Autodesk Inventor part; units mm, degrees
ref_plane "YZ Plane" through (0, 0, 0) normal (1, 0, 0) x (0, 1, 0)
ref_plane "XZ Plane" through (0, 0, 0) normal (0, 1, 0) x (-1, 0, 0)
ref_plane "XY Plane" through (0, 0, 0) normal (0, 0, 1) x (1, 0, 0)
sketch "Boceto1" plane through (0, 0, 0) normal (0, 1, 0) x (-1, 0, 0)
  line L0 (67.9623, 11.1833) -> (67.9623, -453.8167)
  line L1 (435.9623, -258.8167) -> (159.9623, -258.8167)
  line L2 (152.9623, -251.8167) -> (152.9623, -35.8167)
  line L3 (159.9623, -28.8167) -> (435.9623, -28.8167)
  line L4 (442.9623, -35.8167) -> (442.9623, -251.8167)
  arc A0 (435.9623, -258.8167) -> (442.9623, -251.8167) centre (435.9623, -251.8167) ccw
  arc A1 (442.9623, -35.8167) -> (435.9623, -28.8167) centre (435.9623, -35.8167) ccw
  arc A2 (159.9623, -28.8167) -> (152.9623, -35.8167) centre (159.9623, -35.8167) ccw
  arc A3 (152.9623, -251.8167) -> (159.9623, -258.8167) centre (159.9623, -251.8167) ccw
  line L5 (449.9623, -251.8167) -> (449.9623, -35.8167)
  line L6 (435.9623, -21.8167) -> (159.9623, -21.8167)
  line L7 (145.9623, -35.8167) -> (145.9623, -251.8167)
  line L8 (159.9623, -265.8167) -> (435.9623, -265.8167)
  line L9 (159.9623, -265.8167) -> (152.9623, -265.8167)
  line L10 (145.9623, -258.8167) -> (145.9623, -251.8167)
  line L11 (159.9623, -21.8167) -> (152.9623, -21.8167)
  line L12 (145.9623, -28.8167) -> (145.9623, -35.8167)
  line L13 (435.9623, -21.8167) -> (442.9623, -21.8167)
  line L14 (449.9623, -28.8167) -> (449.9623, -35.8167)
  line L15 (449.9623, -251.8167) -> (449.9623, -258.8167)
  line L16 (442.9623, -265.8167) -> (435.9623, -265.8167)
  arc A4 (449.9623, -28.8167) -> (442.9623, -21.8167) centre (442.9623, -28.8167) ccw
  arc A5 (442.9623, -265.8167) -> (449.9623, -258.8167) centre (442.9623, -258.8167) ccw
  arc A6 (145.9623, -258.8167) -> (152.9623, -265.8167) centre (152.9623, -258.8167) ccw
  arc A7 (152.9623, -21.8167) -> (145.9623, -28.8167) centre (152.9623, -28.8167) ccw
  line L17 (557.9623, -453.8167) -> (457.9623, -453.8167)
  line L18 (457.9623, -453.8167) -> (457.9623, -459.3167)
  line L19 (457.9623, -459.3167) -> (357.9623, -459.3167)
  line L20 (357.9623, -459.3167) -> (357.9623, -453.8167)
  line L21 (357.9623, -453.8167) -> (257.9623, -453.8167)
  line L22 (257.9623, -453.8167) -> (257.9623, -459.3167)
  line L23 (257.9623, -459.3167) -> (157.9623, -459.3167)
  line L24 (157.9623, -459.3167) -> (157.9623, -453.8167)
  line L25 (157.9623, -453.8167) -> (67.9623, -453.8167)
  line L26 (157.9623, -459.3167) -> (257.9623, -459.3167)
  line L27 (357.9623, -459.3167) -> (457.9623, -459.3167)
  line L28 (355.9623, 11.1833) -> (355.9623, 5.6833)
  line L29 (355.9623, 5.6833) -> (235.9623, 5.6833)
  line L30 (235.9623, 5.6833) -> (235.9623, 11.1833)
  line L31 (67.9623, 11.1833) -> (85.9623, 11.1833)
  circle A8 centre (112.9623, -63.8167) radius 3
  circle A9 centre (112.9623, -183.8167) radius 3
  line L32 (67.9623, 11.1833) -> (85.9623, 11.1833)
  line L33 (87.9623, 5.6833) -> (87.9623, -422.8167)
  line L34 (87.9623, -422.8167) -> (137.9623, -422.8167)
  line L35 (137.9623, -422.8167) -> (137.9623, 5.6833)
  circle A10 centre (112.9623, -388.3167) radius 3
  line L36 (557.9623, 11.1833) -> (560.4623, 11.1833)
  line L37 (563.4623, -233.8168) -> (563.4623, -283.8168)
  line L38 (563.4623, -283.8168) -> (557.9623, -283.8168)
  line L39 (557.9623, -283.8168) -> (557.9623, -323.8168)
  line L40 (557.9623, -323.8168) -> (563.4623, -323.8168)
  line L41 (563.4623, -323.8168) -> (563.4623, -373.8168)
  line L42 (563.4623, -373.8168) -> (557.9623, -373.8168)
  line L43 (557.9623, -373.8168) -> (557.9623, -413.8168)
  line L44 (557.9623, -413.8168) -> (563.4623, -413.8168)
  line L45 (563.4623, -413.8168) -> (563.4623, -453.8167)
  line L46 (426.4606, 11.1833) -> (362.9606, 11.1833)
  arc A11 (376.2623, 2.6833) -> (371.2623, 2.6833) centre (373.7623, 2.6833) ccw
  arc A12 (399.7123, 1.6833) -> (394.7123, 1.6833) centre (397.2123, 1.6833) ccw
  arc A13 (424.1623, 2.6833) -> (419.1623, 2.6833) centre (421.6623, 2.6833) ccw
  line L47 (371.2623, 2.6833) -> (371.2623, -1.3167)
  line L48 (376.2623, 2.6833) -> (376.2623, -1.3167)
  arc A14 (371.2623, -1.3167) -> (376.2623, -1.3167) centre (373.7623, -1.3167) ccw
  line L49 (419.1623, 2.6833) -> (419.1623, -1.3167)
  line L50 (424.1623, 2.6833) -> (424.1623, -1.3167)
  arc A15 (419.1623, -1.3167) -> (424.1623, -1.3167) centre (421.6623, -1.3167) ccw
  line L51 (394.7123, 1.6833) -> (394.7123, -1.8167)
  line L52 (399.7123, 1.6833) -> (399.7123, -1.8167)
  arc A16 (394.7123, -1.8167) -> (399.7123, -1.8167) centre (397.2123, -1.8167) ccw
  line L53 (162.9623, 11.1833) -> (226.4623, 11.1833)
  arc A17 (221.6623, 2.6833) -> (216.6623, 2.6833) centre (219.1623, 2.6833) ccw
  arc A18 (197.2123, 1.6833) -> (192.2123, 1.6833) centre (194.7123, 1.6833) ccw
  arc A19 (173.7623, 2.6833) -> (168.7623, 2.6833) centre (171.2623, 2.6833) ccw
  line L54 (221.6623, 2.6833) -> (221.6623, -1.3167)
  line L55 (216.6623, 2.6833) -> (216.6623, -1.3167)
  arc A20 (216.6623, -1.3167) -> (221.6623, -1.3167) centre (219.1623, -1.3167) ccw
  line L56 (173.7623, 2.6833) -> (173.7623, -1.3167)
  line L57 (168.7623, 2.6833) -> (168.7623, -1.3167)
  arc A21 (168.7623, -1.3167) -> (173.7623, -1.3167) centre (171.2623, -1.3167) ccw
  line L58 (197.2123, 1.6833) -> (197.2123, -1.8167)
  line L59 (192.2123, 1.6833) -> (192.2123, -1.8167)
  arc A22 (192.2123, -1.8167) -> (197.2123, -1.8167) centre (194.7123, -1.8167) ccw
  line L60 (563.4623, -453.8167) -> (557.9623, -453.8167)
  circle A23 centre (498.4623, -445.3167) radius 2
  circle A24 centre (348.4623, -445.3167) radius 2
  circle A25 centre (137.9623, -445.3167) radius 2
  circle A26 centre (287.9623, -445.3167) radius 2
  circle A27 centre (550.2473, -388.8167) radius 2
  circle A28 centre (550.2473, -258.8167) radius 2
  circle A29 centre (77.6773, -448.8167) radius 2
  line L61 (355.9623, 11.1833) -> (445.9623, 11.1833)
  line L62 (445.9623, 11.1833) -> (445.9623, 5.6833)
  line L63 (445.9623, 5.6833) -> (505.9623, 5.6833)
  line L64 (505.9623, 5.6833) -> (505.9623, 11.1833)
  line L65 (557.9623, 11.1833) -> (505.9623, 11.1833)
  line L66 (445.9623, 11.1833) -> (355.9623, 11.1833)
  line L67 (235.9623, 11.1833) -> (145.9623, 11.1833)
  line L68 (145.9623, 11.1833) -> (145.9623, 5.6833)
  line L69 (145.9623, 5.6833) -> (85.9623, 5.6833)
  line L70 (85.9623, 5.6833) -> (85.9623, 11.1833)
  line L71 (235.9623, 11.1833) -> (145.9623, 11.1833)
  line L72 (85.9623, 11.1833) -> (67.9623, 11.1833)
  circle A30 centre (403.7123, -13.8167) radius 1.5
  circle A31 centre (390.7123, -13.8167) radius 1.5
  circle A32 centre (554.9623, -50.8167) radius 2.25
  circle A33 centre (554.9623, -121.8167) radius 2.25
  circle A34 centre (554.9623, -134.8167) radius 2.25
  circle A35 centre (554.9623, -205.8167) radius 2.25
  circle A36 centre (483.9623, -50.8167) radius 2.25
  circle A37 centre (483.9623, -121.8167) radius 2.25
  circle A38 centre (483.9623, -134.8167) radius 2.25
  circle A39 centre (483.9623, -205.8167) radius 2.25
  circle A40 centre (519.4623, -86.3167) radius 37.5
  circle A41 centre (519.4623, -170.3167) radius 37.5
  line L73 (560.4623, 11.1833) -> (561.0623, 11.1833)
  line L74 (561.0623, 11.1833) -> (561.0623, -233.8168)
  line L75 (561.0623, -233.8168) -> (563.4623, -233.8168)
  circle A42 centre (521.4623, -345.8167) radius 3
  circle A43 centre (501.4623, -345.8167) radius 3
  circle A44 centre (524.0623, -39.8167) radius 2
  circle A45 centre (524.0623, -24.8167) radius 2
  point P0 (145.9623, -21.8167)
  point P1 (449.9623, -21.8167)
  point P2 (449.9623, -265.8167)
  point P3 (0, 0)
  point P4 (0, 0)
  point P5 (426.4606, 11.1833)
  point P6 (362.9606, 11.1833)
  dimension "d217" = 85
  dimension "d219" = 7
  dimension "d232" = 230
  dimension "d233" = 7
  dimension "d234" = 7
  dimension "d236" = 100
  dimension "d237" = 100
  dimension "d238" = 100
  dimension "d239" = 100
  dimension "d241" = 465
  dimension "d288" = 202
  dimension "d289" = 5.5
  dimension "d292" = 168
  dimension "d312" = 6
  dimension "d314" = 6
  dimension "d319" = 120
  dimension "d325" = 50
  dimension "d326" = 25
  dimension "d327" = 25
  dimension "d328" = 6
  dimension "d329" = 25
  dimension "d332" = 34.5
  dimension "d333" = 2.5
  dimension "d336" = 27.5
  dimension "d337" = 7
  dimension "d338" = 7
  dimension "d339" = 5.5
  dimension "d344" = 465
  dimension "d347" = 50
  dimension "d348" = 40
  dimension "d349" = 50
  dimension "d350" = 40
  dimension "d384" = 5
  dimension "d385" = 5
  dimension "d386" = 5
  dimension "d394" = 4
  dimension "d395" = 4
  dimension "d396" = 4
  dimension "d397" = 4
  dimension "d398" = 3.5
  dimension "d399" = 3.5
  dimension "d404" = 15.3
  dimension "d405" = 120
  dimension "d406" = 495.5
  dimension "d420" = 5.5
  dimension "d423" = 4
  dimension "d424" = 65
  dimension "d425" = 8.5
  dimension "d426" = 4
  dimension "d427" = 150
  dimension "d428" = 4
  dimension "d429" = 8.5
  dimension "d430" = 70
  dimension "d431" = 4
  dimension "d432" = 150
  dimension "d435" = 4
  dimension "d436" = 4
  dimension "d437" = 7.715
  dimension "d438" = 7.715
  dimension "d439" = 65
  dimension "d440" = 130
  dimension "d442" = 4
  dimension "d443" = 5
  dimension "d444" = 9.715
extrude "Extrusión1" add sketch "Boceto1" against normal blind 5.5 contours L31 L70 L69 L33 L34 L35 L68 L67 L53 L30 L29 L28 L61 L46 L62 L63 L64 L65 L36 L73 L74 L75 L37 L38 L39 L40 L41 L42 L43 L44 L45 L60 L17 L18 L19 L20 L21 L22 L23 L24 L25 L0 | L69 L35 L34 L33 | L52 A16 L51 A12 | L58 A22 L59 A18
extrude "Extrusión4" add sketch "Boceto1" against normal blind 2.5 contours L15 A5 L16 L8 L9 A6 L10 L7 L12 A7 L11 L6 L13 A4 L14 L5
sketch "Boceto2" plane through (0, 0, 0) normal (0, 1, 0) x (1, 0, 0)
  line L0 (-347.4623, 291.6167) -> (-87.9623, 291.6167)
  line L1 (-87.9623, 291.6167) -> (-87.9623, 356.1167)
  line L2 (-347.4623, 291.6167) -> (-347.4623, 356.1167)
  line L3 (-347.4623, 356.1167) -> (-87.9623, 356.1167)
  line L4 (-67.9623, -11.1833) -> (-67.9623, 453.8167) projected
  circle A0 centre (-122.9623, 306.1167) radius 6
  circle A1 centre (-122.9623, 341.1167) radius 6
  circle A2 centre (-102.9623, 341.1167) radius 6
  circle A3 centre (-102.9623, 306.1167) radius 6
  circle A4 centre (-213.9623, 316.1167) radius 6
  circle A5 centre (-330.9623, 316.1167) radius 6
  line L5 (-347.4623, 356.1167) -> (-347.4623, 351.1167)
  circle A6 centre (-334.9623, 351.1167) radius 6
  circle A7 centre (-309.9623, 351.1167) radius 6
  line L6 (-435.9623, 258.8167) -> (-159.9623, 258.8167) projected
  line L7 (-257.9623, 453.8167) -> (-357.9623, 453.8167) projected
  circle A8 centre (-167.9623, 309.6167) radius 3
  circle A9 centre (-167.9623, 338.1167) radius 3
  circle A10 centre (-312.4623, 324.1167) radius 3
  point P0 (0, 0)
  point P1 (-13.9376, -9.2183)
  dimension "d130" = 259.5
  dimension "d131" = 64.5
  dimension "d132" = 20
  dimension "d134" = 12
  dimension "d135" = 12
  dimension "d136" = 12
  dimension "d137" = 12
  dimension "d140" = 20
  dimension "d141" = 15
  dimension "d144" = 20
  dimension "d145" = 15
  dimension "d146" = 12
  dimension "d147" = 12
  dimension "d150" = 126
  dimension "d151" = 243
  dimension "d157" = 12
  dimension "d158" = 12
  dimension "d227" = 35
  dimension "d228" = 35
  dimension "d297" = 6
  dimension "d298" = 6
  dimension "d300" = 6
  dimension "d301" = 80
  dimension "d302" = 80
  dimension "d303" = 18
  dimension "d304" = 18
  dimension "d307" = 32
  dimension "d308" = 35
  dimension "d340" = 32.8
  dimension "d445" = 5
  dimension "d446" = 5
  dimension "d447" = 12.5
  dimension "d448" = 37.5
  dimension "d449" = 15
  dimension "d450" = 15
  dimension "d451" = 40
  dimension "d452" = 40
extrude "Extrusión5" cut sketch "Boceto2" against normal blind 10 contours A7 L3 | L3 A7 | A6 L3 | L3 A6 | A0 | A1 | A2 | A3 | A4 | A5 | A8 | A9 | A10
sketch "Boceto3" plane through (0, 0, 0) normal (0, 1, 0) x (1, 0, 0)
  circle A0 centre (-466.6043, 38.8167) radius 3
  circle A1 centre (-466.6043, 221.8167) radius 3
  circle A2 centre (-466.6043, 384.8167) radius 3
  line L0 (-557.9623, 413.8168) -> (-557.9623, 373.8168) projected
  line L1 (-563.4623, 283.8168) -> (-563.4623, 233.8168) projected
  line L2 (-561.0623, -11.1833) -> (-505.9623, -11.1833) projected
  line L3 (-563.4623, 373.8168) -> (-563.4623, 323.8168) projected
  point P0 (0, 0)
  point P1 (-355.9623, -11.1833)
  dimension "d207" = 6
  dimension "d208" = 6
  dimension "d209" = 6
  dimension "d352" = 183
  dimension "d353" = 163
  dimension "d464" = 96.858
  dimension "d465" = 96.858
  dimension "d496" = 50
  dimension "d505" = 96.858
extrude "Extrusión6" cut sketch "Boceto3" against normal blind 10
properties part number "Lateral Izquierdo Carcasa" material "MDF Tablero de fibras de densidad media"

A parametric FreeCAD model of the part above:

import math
import FreeCAD as App
import Part
import Sketcher

V = App.Vector
Q = App.Units.Quantity

doc = App.newDocument("Part")
params = doc.addObject("Spreadsheet::Sheet", "Params")
for row, (alias, value) in enumerate([
    ("sketch1_diameter", "4 mm"),
    ("sketch1_diameter2", "6 mm"),
    ("sketch1_radius", "7 mm"),
    ("sketch1_radius2", "2.5 mm"),
    ("sketch1_width", "100 mm"),
    ("pad1_length", "5.5 mm"),
    ("sketch2_radius", "7 mm"),
    ("sketch2_height", "230 mm"),
    ("sketch2_width", "290 mm"),
    ("pad2_length", "2.5 mm"),
    ("sketch3_diameter", "12 mm"),
    ("sketch3_diameter2", "6 mm"),
    ("pocket1_length", "10 mm"),
    ("sketch4_diameter", "6 mm"),
    ("pocket2_length", "10 mm"),
], start=1):
    params.set(f"A{row}", alias)
    params.set(f"B{row}", "=" + value)
    params.setAlias(f"B{row}", alias)

body = doc.addObject("PartDesign::Body", "Body")

sketch1 = body.newObject("Sketcher::SketchObject", "Sketch")
sketch1.AttachmentSupport = (doc.getObject("XZ_Plane"), [""])
sketch1.MapMode = "FlatFace"
sketch1.addGeometry(Part.LineSegment(V(-86, 11.2, 0), V(-68, 11.2, 0)), False)
sketch1.addGeometry(Part.LineSegment(V(-68, 11.2, 0), V(-68, -453.8, 0)), False)
sketch1.addGeometry(Part.LineSegment(V(-68, -453.8, 0), V(-158, -453.8, 0)), False)
sketch1.addGeometry(Part.LineSegment(V(-158, -453.8, 0), V(-158, -459.3, 0)), False)
sketch1.addGeometry(Part.LineSegment(V(-158, -459.3, 0), V(-258, -459.3, 0)), False)
sketch1.addGeometry(Part.LineSegment(V(-258, -459.3, 0), V(-258, -453.8, 0)), False)
sketch1.addGeometry(Part.LineSegment(V(-258, -453.8, 0), V(-358, -453.8, 0)), False)
sketch1.addGeometry(Part.LineSegment(V(-358, -453.8, 0), V(-358, -459.3, 0)), False)
sketch1.addGeometry(Part.LineSegment(V(-358, -459.3, 0), V(-458, -459.3, 0)), False)
sketch1.addGeometry(Part.LineSegment(V(-458, -459.3, 0), V(-458, -453.8, 0)), False)
sketch1.addGeometry(Part.LineSegment(V(-458, -453.8, 0), V(-563.5, -453.8, 0)), False)
sketch1.addGeometry(Part.LineSegment(V(-563.5, -453.8, 0), V(-563.5, -413.8, 0)), False)
sketch1.addGeometry(Part.LineSegment(V(-563.5, -413.8, 0), V(-558, -413.8, 0)), False)
sketch1.addGeometry(Part.LineSegment(V(-558, -413.8, 0), V(-558, -373.8, 0)), False)
sketch1.addGeometry(Part.LineSegment(V(-558, -373.8, 0), V(-563.5, -373.8, 0)), False)
sketch1.addGeometry(Part.LineSegment(V(-563.5, -373.8, 0), V(-563.5, -323.8, 0)), False)
sketch1.addGeometry(Part.LineSegment(V(-563.5, -323.8, 0), V(-558, -323.8, 0)), False)
sketch1.addGeometry(Part.LineSegment(V(-558, -323.8, 0), V(-558, -283.8, 0)), False)
sketch1.addGeometry(Part.LineSegment(V(-558, -283.8, 0), V(-563.5, -283.8, 0)), False)
sketch1.addGeometry(Part.LineSegment(V(-563.5, -283.8, 0), V(-563.5, -233.8, 0)), False)
sketch1.addGeometry(Part.LineSegment(V(-563.5, -233.8, 0), V(-561.1, -233.8, 0)), False)
sketch1.addGeometry(Part.LineSegment(V(-561.1, -233.8, 0), V(-561.1, 11.2, 0)), False)
sketch1.addGeometry(Part.LineSegment(V(-561.1, 11.2, 0), V(-506, 11.2, 0)), False)
sketch1.addGeometry(Part.LineSegment(V(-506, 11.2, 0), V(-506, 5.7, 0)), False)
sketch1.addGeometry(Part.LineSegment(V(-506, 5.7, 0), V(-446, 5.7, 0)), False)
sketch1.addGeometry(Part.LineSegment(V(-446, 5.7, 0), V(-446, 11.2, 0)), False)
sketch1.addGeometry(Part.LineSegment(V(-446, 11.2, 0), V(-356, 11.2, 0)), False)
sketch1.addGeometry(Part.LineSegment(V(-356, 11.2, 0), V(-356, 5.7, 0)), False)
sketch1.addGeometry(Part.LineSegment(V(-356, 5.7, 0), V(-236, 5.7, 0)), False)
sketch1.addGeometry(Part.LineSegment(V(-236, 5.7, 0), V(-236, 11.2, 0)), False)
sketch1.addGeometry(Part.LineSegment(V(-236, 11.2, 0), V(-146, 11.2, 0)), False)
sketch1.addGeometry(Part.LineSegment(V(-146, 11.2, 0), V(-146, 5.7, 0)), False)
sketch1.addGeometry(Part.LineSegment(V(-146, 5.7, 0), V(-86, 5.7, 0)), False)
sketch1.addGeometry(Part.LineSegment(V(-86, 5.7, 0), V(-86, 11.2, 0)), False)
sketch1.addGeometry(Part.Circle(V(-77.7, -448.8, 0), V(0, 0, 1), 2), False)
sketch1.addGeometry(Part.Circle(V(-138, -445.3, 0), V(0, 0, 1), 2), False)
sketch1.addGeometry(Part.Circle(V(-288, -445.3, 0), V(0, 0, 1), 2), False)
sketch1.addGeometry(Part.Circle(V(-348.5, -445.3, 0), V(0, 0, 1), 2), False)
sketch1.addGeometry(Part.Circle(V(-498.5, -445.3, 0), V(0, 0, 1), 2), False)
sketch1.addGeometry(Part.Circle(V(-501.5, -345.8, 0), V(0, 0, 1), 3), False)
sketch1.addGeometry(Part.Circle(V(-550.2, -388.8, 0), V(0, 0, 1), 2), False)
sketch1.addGeometry(Part.Circle(V(-521.5, -345.8, 0), V(0, 0, 1), 3), False)
sketch1.addGeometry(Part.Circle(V(-550.2, -258.8, 0), V(0, 0, 1), 2), False)
sketch1.addGeometry(Part.ArcOfCircle(Part.Circle(V(-443, -258.8, 0), V(0, 0, 1), 7), math.radians(180), math.radians(270)), False)
sketch1.addGeometry(Part.LineSegment(V(-443, -265.8, 0), V(-153, -265.8, 0)), False)
sketch1.addGeometry(Part.ArcOfCircle(Part.Circle(V(-153, -258.8, 0), V(0, 0, 1), 7), math.radians(-90), math.radians(0)), False)
sketch1.addGeometry(Part.LineSegment(V(-146, -258.8, 0), V(-146, -28.8, 0)), False)
sketch1.addGeometry(Part.ArcOfCircle(Part.Circle(V(-153, -28.8, 0), V(0, 0, 1), 7), math.radians(0), math.radians(90)), False)
sketch1.addGeometry(Part.LineSegment(V(-153, -21.8, 0), V(-443, -21.8, 0)), False)
sketch1.addGeometry(Part.ArcOfCircle(Part.Circle(V(-443, -28.8, 0), V(0, 0, 1), 7), math.radians(90), math.radians(180)), False)
sketch1.addGeometry(Part.LineSegment(V(-450, -28.8, 0), V(-450, -258.8, 0)), False)
sketch1.addGeometry(Part.ArcOfCircle(Part.Circle(V(-171.3, 2.7, 0), V(0, 0, 1), 2.5), math.radians(0), math.radians(180)), False)
sketch1.addGeometry(Part.LineSegment(V(-173.8, 2.7, 0), V(-173.8, -1.3, 0)), False)
sketch1.addGeometry(Part.ArcOfCircle(Part.Circle(V(-171.3, -1.3, 0), V(0, 0, 1), 2.5), math.radians(180), math.radians(360)), False)
sketch1.addGeometry(Part.LineSegment(V(-168.8, -1.3, 0), V(-168.8, 2.7, 0)), False)
sketch1.addGeometry(Part.ArcOfCircle(Part.Circle(V(-219.2, 2.7, 0), V(0, 0, 1), 2.5), math.radians(0), math.radians(180)), False)
sketch1.addGeometry(Part.LineSegment(V(-221.7, 2.7, 0), V(-221.7, -1.3, 0)), False)
sketch1.addGeometry(Part.ArcOfCircle(Part.Circle(V(-219.2, -1.3, 0), V(0, 0, 1), 2.5), math.radians(180), math.radians(360)), False)
sketch1.addGeometry(Part.LineSegment(V(-216.7, -1.3, 0), V(-216.7, 2.7, 0)), False)
sketch1.addGeometry(Part.Circle(V(-484, -205.8, 0), V(0, 0, 1), 2.2), False)
sketch1.addGeometry(Part.Circle(V(-555, -205.8, 0), V(0, 0, 1), 2.2), False)
sketch1.addGeometry(Part.Circle(V(-519.5, -170.3, 0), V(0, 0, 1), 37.5), False)
sketch1.addGeometry(Part.Circle(V(-484, -134.8, 0), V(0, 0, 1), 2.2), False)
sketch1.addGeometry(Part.Circle(V(-484, -121.8, 0), V(0, 0, 1), 2.2), False)
sketch1.addGeometry(Part.Circle(V(-555, -134.8, 0), V(0, 0, 1), 2.2), False)
sketch1.addGeometry(Part.Circle(V(-555, -121.8, 0), V(0, 0, 1), 2.2), False)
sketch1.addGeometry(Part.ArcOfCircle(Part.Circle(V(-373.8, 2.7, 0), V(0, 0, 1), 2.5), math.radians(0), math.radians(180)), False)
sketch1.addGeometry(Part.LineSegment(V(-376.3, 2.7, 0), V(-376.3, -1.3, 0)), False)
sketch1.addGeometry(Part.ArcOfCircle(Part.Circle(V(-373.8, -1.3, 0), V(0, 0, 1), 2.5), math.radians(180), math.radians(360)), False)
sketch1.addGeometry(Part.LineSegment(V(-371.3, -1.3, 0), V(-371.3, 2.7, 0)), False)
sketch1.addGeometry(Part.Circle(V(-390.7, -13.8, 0), V(0, 0, 1), 1.5), False)
sketch1.addGeometry(Part.Circle(V(-403.7, -13.8, 0), V(0, 0, 1), 1.5), False)
sketch1.addGeometry(Part.ArcOfCircle(Part.Circle(V(-421.7, 2.7, 0), V(0, 0, 1), 2.5), math.radians(0), math.radians(180)), False)
sketch1.addGeometry(Part.LineSegment(V(-424.2, 2.7, 0), V(-424.2, -1.3, 0)), False)
sketch1.addGeometry(Part.ArcOfCircle(Part.Circle(V(-421.7, -1.3, 0), V(0, 0, 1), 2.5), math.radians(180), math.radians(360)), False)
sketch1.addGeometry(Part.LineSegment(V(-419.2, -1.3, 0), V(-419.2, 2.7, 0)), False)
sketch1.addGeometry(Part.Circle(V(-484, -50.8, 0), V(0, 0, 1), 2.2), False)
sketch1.addGeometry(Part.Circle(V(-519.5, -86.3, 0), V(0, 0, 1), 37.5), False)
sketch1.addGeometry(Part.Circle(V(-555, -50.8, 0), V(0, 0, 1), 2.2), False)
sketch1.addGeometry(Part.Circle(V(-524.1, -39.8, 0), V(0, 0, 1), 2), False)
sketch1.addGeometry(Part.Circle(V(-524.1, -24.8, 0), V(0, 0, 1), 2), False)
sketch1.addGeometry(Part.Circle(V(-113, -388.3, 0), V(0, 0, 1), 3), False)
sketch1.addGeometry(Part.Circle(V(-113, -183.8, 0), V(0, 0, 1), 3), False)
sketch1.addGeometry(Part.Circle(V(-113, -63.8, 0), V(0, 0, 1), 3), False)
sketch1.addConstraint(Sketcher.Constraint("Coincident", 0, 2, 1, 1))
sketch1.addConstraint(Sketcher.Constraint("Coincident", 1, 2, 2, 1))
sketch1.addConstraint(Sketcher.Constraint("Coincident", 2, 2, 3, 1))
sketch1.addConstraint(Sketcher.Constraint("Coincident", 3, 2, 4, 1))
sketch1.addConstraint(Sketcher.Constraint("Coincident", 4, 2, 5, 1))
sketch1.addConstraint(Sketcher.Constraint("Coincident", 5, 2, 6, 1))
sketch1.addConstraint(Sketcher.Constraint("Coincident", 6, 2, 7, 1))
sketch1.addConstraint(Sketcher.Constraint("Coincident", 7, 2, 8, 1))
sketch1.addConstraint(Sketcher.Constraint("Coincident", 8, 2, 9, 1))
sketch1.addConstraint(Sketcher.Constraint("Coincident", 9, 2, 10, 1))
sketch1.addConstraint(Sketcher.Constraint("Coincident", 10, 2, 11, 1))
sketch1.addConstraint(Sketcher.Constraint("Coincident", 11, 2, 12, 1))
sketch1.addConstraint(Sketcher.Constraint("Coincident", 12, 2, 13, 1))
sketch1.addConstraint(Sketcher.Constraint("Coincident", 13, 2, 14, 1))
sketch1.addConstraint(Sketcher.Constraint("Coincident", 14, 2, 15, 1))
sketch1.addConstraint(Sketcher.Constraint("Coincident", 15, 2, 16, 1))
sketch1.addConstraint(Sketcher.Constraint("Coincident", 16, 2, 17, 1))
sketch1.addConstraint(Sketcher.Constraint("Coincident", 17, 2, 18, 1))
sketch1.addConstraint(Sketcher.Constraint("Coincident", 18, 2, 19, 1))
sketch1.addConstraint(Sketcher.Constraint("Coincident", 19, 2, 20, 1))
sketch1.addConstraint(Sketcher.Constraint("Coincident", 20, 2, 21, 1))
sketch1.addConstraint(Sketcher.Constraint("Coincident", 21, 2, 22, 1))
sketch1.addConstraint(Sketcher.Constraint("Coincident", 22, 2, 23, 1))
sketch1.addConstraint(Sketcher.Constraint("Coincident", 23, 2, 24, 1))
sketch1.addConstraint(Sketcher.Constraint("Coincident", 24, 2, 25, 1))
sketch1.addConstraint(Sketcher.Constraint("Coincident", 25, 2, 26, 1))
sketch1.addConstraint(Sketcher.Constraint("Coincident", 26, 2, 27, 1))
sketch1.addConstraint(Sketcher.Constraint("Coincident", 27, 2, 28, 1))
sketch1.addConstraint(Sketcher.Constraint("Coincident", 28, 2, 29, 1))
sketch1.addConstraint(Sketcher.Constraint("Coincident", 29, 2, 30, 1))
sketch1.addConstraint(Sketcher.Constraint("Coincident", 30, 2, 31, 1))
sketch1.addConstraint(Sketcher.Constraint("Coincident", 31, 2, 32, 1))
sketch1.addConstraint(Sketcher.Constraint("Coincident", 32, 2, 33, 1))
sketch1.addConstraint(Sketcher.Constraint("Coincident", 33, 2, 0, 1))
sketch1.addConstraint(Sketcher.Constraint("Tangent", 43, 2, 44, 1))
sketch1.addConstraint(Sketcher.Constraint("Tangent", 44, 2, 45, 1))
sketch1.addConstraint(Sketcher.Constraint("Tangent", 45, 2, 46, 1))
sketch1.addConstraint(Sketcher.Constraint("Tangent", 46, 2, 47, 1))
sketch1.addConstraint(Sketcher.Constraint("Tangent", 47, 2, 48, 1))
sketch1.addConstraint(Sketcher.Constraint("Tangent", 48, 2, 49, 1))
sketch1.addConstraint(Sketcher.Constraint("Tangent", 49, 2, 50, 1))
sketch1.addConstraint(Sketcher.Constraint("Tangent", 50, 2, 43, 1))
sketch1.addConstraint(Sketcher.Constraint("Tangent", 51, 2, 52, 1))
sketch1.addConstraint(Sketcher.Constraint("Tangent", 52, 2, 53, 1))
sketch1.addConstraint(Sketcher.Constraint("Tangent", 53, 2, 54, 1))
sketch1.addConstraint(Sketcher.Constraint("Tangent", 54, 2, 51, 1))
sketch1.addConstraint(Sketcher.Constraint("Tangent", 55, 2, 56, 1))
sketch1.addConstraint(Sketcher.Constraint("Tangent", 56, 2, 57, 1))
sketch1.addConstraint(Sketcher.Constraint("Tangent", 57, 2, 58, 1))
sketch1.addConstraint(Sketcher.Constraint("Tangent", 58, 2, 55, 1))
sketch1.addConstraint(Sketcher.Constraint("Tangent", 66, 2, 67, 1))
sketch1.addConstraint(Sketcher.Constraint("Tangent", 67, 2, 68, 1))
sketch1.addConstraint(Sketcher.Constraint("Tangent", 68, 2, 69, 1))
sketch1.addConstraint(Sketcher.Constraint("Tangent", 69, 2, 66, 1))
sketch1.addConstraint(Sketcher.Constraint("Tangent", 72, 2, 73, 1))
sketch1.addConstraint(Sketcher.Constraint("Tangent", 73, 2, 74, 1))
sketch1.addConstraint(Sketcher.Constraint("Tangent", 74, 2, 75, 1))
sketch1.addConstraint(Sketcher.Constraint("Tangent", 75, 2, 72, 1))
sketch1.addConstraint(Sketcher.Constraint("Horizontal", 0))
sketch1.addConstraint(Sketcher.Constraint("Vertical", 1))
sketch1.addConstraint(Sketcher.Constraint("Horizontal", 2))
sketch1.addConstraint(Sketcher.Constraint("Vertical", 3))
sketch1.addConstraint(Sketcher.Constraint("Horizontal", 4))
sketch1.addConstraint(Sketcher.Constraint("Vertical", 5))
sketch1.addConstraint(Sketcher.Constraint("Horizontal", 6))
sketch1.addConstraint(Sketcher.Constraint("Vertical", 7))
sketch1.addConstraint(Sketcher.Constraint("Horizontal", 8))
sketch1.addConstraint(Sketcher.Constraint("Vertical", 9))
sketch1.addConstraint(Sketcher.Constraint("Horizontal", 10))
sketch1.addConstraint(Sketcher.Constraint("Vertical", 11))
sketch1.addConstraint(Sketcher.Constraint("Horizontal", 12))
sketch1.addConstraint(Sketcher.Constraint("Vertical", 13))
sketch1.addConstraint(Sketcher.Constraint("Horizontal", 14))
sketch1.addConstraint(Sketcher.Constraint("Vertical", 15))
sketch1.addConstraint(Sketcher.Constraint("Horizontal", 16))
sketch1.addConstraint(Sketcher.Constraint("Vertical", 17))
sketch1.addConstraint(Sketcher.Constraint("Horizontal", 18))
sketch1.addConstraint(Sketcher.Constraint("Vertical", 19))
sketch1.addConstraint(Sketcher.Constraint("Horizontal", 20))
sketch1.addConstraint(Sketcher.Constraint("Vertical", 21))
sketch1.addConstraint(Sketcher.Constraint("Horizontal", 22))
sketch1.addConstraint(Sketcher.Constraint("Vertical", 23))
sketch1.addConstraint(Sketcher.Constraint("Horizontal", 24))
sketch1.addConstraint(Sketcher.Constraint("Vertical", 25))
sketch1.addConstraint(Sketcher.Constraint("Horizontal", 26))
sketch1.addConstraint(Sketcher.Constraint("Vertical", 27))
sketch1.addConstraint(Sketcher.Constraint("Horizontal", 28))
sketch1.addConstraint(Sketcher.Constraint("Vertical", 29))
sketch1.addConstraint(Sketcher.Constraint("Horizontal", 30))
sketch1.addConstraint(Sketcher.Constraint("Vertical", 31))
sketch1.addConstraint(Sketcher.Constraint("Horizontal", 32))
sketch1.addConstraint(Sketcher.Constraint("Vertical", 33))
sketch1.addConstraint(Sketcher.Constraint("Horizontal", 44))
sketch1.addConstraint(Sketcher.Constraint("Vertical", 46))
sketch1.addConstraint(Sketcher.Constraint("Horizontal", 48))
sketch1.addConstraint(Sketcher.Constraint("Vertical", 50))
sketch1.addConstraint(Sketcher.Constraint("Vertical", 52))
sketch1.addConstraint(Sketcher.Constraint("Vertical", 54))
sketch1.addConstraint(Sketcher.Constraint("Vertical", 56))
sketch1.addConstraint(Sketcher.Constraint("Vertical", 58))
sketch1.addConstraint(Sketcher.Constraint("Vertical", 67))
sketch1.addConstraint(Sketcher.Constraint("Vertical", 69))
sketch1.addConstraint(Sketcher.Constraint("Vertical", 73))
sketch1.addConstraint(Sketcher.Constraint("Vertical", 75))
sketch1.addConstraint(Sketcher.Constraint("Equal", 34, 35))
sketch1.addConstraint(Sketcher.Constraint("Equal", 35, 36))
sketch1.addConstraint(Sketcher.Constraint("Equal", 36, 37))
sketch1.addConstraint(Sketcher.Constraint("Equal", 37, 38))
sketch1.addConstraint(Sketcher.Constraint("Equal", 38, 40))
sketch1.addConstraint(Sketcher.Constraint("Equal", 39, 41))
sketch1.addConstraint(Sketcher.Constraint("Equal", 40, 42))
sketch1.addConstraint(Sketcher.Constraint("Equal", 43, 45))
sketch1.addConstraint(Sketcher.Constraint("Equal", 45, 47))
sketch1.addConstraint(Sketcher.Constraint("Equal", 47, 49))
sketch1.addConstraint(Sketcher.Constraint("Equal", 53, 55))
sketch1.addConstraint(Sketcher.Constraint("Equal", 59, 60))
sketch1.addConstraint(Sketcher.Constraint("Equal", 60, 62))
sketch1.addConstraint(Sketcher.Constraint("Equal", 62, 63))
sketch1.addConstraint(Sketcher.Constraint("Equal", 63, 64))
sketch1.addConstraint(Sketcher.Constraint("Equal", 64, 65))
sketch1.addConstraint(Sketcher.Constraint("Equal", 57, 66))
sketch1.addConstraint(Sketcher.Constraint("Equal", 70, 71))
sketch1.addConstraint(Sketcher.Constraint("Equal", 68, 72))
sketch1.addConstraint(Sketcher.Constraint("Equal", 65, 76))
sketch1.addConstraint(Sketcher.Constraint("Equal", 61, 77))
sketch1.addConstraint(Sketcher.Constraint("Equal", 76, 78))
sketch1.addConstraint(Sketcher.Constraint("Equal", 42, 79))
sketch1.addConstraint(Sketcher.Constraint("Equal", 79, 80))
sketch1.addConstraint(Sketcher.Constraint("Equal", 41, 81))
sketch1.addConstraint(Sketcher.Constraint("Equal", 81, 82))
sketch1.addConstraint(Sketcher.Constraint("Equal", 82, 83))
sketch1.addConstraint(Sketcher.Constraint("Horizontal", 35, 3, 36, 3))
sketch1.addConstraint(Sketcher.Constraint("Horizontal", 36, 3, 37, 3))
sketch1.addConstraint(Sketcher.Constraint("Horizontal", 37, 3, 38, 3))
sketch1.addConstraint(Sketcher.Constraint("Horizontal", 39, 3, 41, 3))
sketch1.addConstraint(Sketcher.Constraint("Horizontal", 42, 3, 43, 3))
sketch1.addConstraint(Sketcher.Constraint("Horizontal", 51, 3, 55, 3))
sketch1.addConstraint(Sketcher.Constraint("Horizontal", 53, 3, 57, 3))
sketch1.addConstraint(Sketcher.Constraint("Horizontal", 59, 3, 60, 3))
sketch1.addConstraint(Sketcher.Constraint("Horizontal", 62, 3, 64, 3))
sketch1.addConstraint(Sketcher.Constraint("Horizontal", 63, 3, 65, 3))
sketch1.addConstraint(Sketcher.Constraint("Horizontal", 55, 3, 66, 3))
sketch1.addConstraint(Sketcher.Constraint("Horizontal", 57, 3, 68, 3))
sketch1.addConstraint(Sketcher.Constraint("Horizontal", 70, 3, 71, 3))
sketch1.addConstraint(Sketcher.Constraint("Horizontal", 66, 3, 72, 3))
sketch1.addConstraint(Sketcher.Constraint("Horizontal", 68, 3, 74, 3))
sketch1.addConstraint(Sketcher.Constraint("Horizontal", 76, 3, 78, 3))
sketch1.addConstraint(Sketcher.Constraint("Horizontal", 2, 2, 5, 2))
sketch1.addConstraint(Sketcher.Constraint("Horizontal", 4, 2, 7, 2))
sketch1.addConstraint(Sketcher.Constraint("Horizontal", 6, 2, 9, 2))
sketch1.addConstraint(Sketcher.Constraint("Horizontal", 0, 2, 21, 2))
sketch1.addConstraint(Sketcher.Constraint("Horizontal", 22, 2, 25, 2))
sketch1.addConstraint(Sketcher.Constraint("Horizontal", 24, 2, 27, 2))
sketch1.addConstraint(Sketcher.Constraint("Horizontal", 26, 2, 29, 2))
sketch1.addConstraint(Sketcher.Constraint("Horizontal", 28, 2, 31, 2))
sketch1.addConstraint(Sketcher.Constraint("Vertical", 40, 3, 42, 3))
sketch1.addConstraint(Sketcher.Constraint("Vertical", 59, 3, 62, 3))
sketch1.addConstraint(Sketcher.Constraint("Vertical", 62, 3, 63, 3))
sketch1.addConstraint(Sketcher.Constraint("Vertical", 60, 3, 64, 3))
sketch1.addConstraint(Sketcher.Constraint("Vertical", 64, 3, 65, 3))
sketch1.addConstraint(Sketcher.Constraint("Vertical", 63, 3, 76, 3))
sketch1.addConstraint(Sketcher.Constraint("Vertical", 61, 3, 77, 3))
sketch1.addConstraint(Sketcher.Constraint("Vertical", 65, 3, 78, 3))
sketch1.addConstraint(Sketcher.Constraint("Vertical", 79, 3, 80, 3))
sketch1.addConstraint(Sketcher.Constraint("Vertical", 81, 3, 82, 3))
sketch1.addConstraint(Sketcher.Constraint("Vertical", 82, 3, 83, 3))
sketch1.addConstraint(Sketcher.Constraint("Vertical", 11, 2, 14, 2))
sketch1.addConstraint(Sketcher.Constraint("Vertical", 13, 2, 16, 2))
sketch1.addConstraint(Sketcher.Constraint("Vertical", 15, 2, 18, 2))
sketch1.addConstraint(Sketcher.Constraint("Vertical", 31, 2, 45, 2))
sketch1.addConstraint(Sketcher.Constraint("Equal", 4, 6))
sketch1.addConstraint(Sketcher.Constraint("Equal", 6, 8))
sketch1.addConstraint(Sketcher.Constraint("Equal", 2, 26))
sketch1.addConstraint(Sketcher.Constraint("Equal", 26, 30))
sketch1.addConstraint(Sketcher.Constraint("Equal", 24, 32))
sketch1.addConstraint(Sketcher.Constraint("Equal", 18, 3))
sketch1.addConstraint(Sketcher.Constraint("Equal", 11, 13))
sketch1.addConstraint(Sketcher.Constraint("Equal", 13, 17))
sketch1.addConstraint(Sketcher.Constraint("Equal", 15, 19))
sketch1.addConstraint(Sketcher.Constraint("Equal", 9, 23))
sketch1.addConstraint(Sketcher.Constraint("Diameter", 34, Q("4 mm")))
sketch1.addConstraint(Sketcher.Constraint("Diameter", 39, Q("6 mm")))
sketch1.addConstraint(Sketcher.Constraint("Radius", 43, Q("7 mm")))
sketch1.addConstraint(Sketcher.Constraint("Radius", 51, Q("2.5 mm")))
sketch1.addConstraint(Sketcher.Constraint("DistanceX", 4, 2, 4, 1, Q("100 mm")))
sketch1.addConstraint(Sketcher.Constraint("DistanceX", 28, 1, 28, 2, Q("120 mm")))
sketch1.addConstraint(Sketcher.Constraint("DistanceY", 1, 2, 1, 1, Q("465 mm")))
sketch1.addConstraint(Sketcher.Constraint("DistanceY", 11, 1, 11, 2, Q("40 mm")))
sketch1.addConstraint(Sketcher.Constraint("DistanceY", 15, 1, 15, 2, Q("50 mm")))
sketch1.addConstraint(Sketcher.Constraint("DistanceY", 46, 1, 46, 2, Q("230 mm")))
sketch1.addConstraint(Sketcher.Constraint("DistanceY", 52, 2, 52, 1, Q("4 mm")))
sketch1.addConstraint(Sketcher.Constraint("Diameter", 61, Q("75 mm")))
sketch1.addConstraint(Sketcher.Constraint("Diameter", 70, Q("3 mm")))
sketch1.addConstraint(Sketcher.Constraint("DistanceX", 12, 1, 12, 2, Q("5.5 mm")))
sketch1.addConstraint(Sketcher.Constraint("Diameter", 59, Q("4.5 mm")))
sketch1.addConstraint(Sketcher.Constraint("DistanceX", 0, 1, 0, 2, Q("18 mm")))
sketch1.addConstraint(Sketcher.Constraint("DistanceX", 2, 2, 2, 1, Q("90 mm")))
sketch1.addConstraint(Sketcher.Constraint("DistanceX", 24, 1, 24, 2, Q("60 mm")))
sketch1.addConstraint(Sketcher.Constraint("DistanceX", 44, 1, 44, 2, Q("290 mm")))
sketch1.addConstraint(Sketcher.Constraint("DistanceX", 10, 2, 10, 1, Q("105.5 mm")))
sketch1.addConstraint(Sketcher.Constraint("DistanceX", 20, 1, 20, 2, Q("2.4 mm")))
sketch1.addConstraint(Sketcher.Constraint("DistanceX", 34, 3, -1, 1, Q("77.6773 mm")))
sketch1.addConstraint(Sketcher.Constraint("DistanceY", 34, 3, -1, 1, Q("448.8167 mm")))
sketch1.addConstraint(Sketcher.Constraint("DistanceX", 35, 3, -1, 1, Q("137.9623 mm")))
sketch1.addConstraint(Sketcher.Constraint("DistanceY", 35, 3, -1, 1, Q("445.3167 mm")))
sketch1.addConstraint(Sketcher.Constraint("DistanceX", 36, 3, -1, 1, Q("287.9623 mm")))
sketch1.addConstraint(Sketcher.Constraint("DistanceX", 37, 3, -1, 1, Q("348.4623 mm")))
sketch1.addConstraint(Sketcher.Constraint("DistanceX", 38, 3, -1, 1, Q("498.4623 mm")))
sketch1.addConstraint(Sketcher.Constraint("DistanceX", 39, 3, -1, 1, Q("501.4623 mm")))
sketch1.addConstraint(Sketcher.Constraint("DistanceY", 39, 3, -1, 1, Q("345.8167 mm")))
sketch1.addConstraint(Sketcher.Constraint("DistanceX", 40, 3, -1, 1, Q("550.2473 mm")))
sketch1.addConstraint(Sketcher.Constraint("DistanceY", 40, 3, -1, 1, Q("388.8167 mm")))
sketch1.addConstraint(Sketcher.Constraint("DistanceX", 41, 3, -1, 1, Q("521.4623 mm")))
sketch1.addConstraint(Sketcher.Constraint("DistanceY", 42, 3, -1, 1, Q("258.8167 mm")))
sketch1.addConstraint(Sketcher.Constraint("DistanceX", 43, 3, -1, 1, Q("442.9623 mm")))
sketch1.addConstraint(Sketcher.Constraint("DistanceX", 51, 3, -1, 1, Q("171.2623 mm")))
sketch1.addConstraint(Sketcher.Constraint("DistanceY", -1, 1, 51, 3, Q("2.6833 mm")))
sketch1.addConstraint(Sketcher.Constraint("DistanceX", 55, 3, -1, 1, Q("219.1623 mm")))
sketch1.addConstraint(Sketcher.Constraint("DistanceX", 59, 3, -1, 1, Q("483.9623 mm")))
sketch1.addConstraint(Sketcher.Constraint("DistanceY", 59, 3, -1, 1, Q("205.8167 mm")))
sketch1.addConstraint(Sketcher.Constraint("DistanceX", 60, 3, -1, 1, Q("554.9623 mm")))
sketch1.addConstraint(Sketcher.Constraint("DistanceX", 61, 3, -1, 1, Q("519.4623 mm")))
sketch1.addConstraint(Sketcher.Constraint("DistanceY", 61, 3, -1, 1, Q("170.3167 mm")))
sketch1.addConstraint(Sketcher.Constraint("DistanceY", 62, 3, -1, 1, Q("134.8167 mm")))
sketch1.addConstraint(Sketcher.Constraint("DistanceY", 63, 3, -1, 1, Q("121.8167 mm")))
sketch1.addConstraint(Sketcher.Constraint("DistanceX", 66, 3, -1, 1, Q("373.7623 mm")))
sketch1.addConstraint(Sketcher.Constraint("DistanceX", 70, 3, -1, 1, Q("390.7123 mm")))
sketch1.addConstraint(Sketcher.Constraint("DistanceY", 70, 3, -1, 1, Q("13.8167 mm")))
sketch1.addConstraint(Sketcher.Constraint("DistanceX", 71, 3, -1, 1, Q("403.7123 mm")))
sketch1.addConstraint(Sketcher.Constraint("DistanceX", 72, 3, -1, 1, Q("421.6623 mm")))
sketch1.addConstraint(Sketcher.Constraint("DistanceY", 76, 3, -1, 1, Q("50.8167 mm")))
sketch1.addConstraint(Sketcher.Constraint("DistanceY", 77, 3, -1, 1, Q("86.3167 mm")))
sketch1.addConstraint(Sketcher.Constraint("DistanceX", 79, 3, -1, 1, Q("524.0623 mm")))
sketch1.addConstraint(Sketcher.Constraint("DistanceY", 79, 3, -1, 1, Q("39.8167 mm")))
sketch1.addConstraint(Sketcher.Constraint("DistanceY", 80, 3, -1, 1, Q("24.8167 mm")))
sketch1.addConstraint(Sketcher.Constraint("DistanceX", 81, 3, -1, 1, Q("112.9623 mm")))
sketch1.addConstraint(Sketcher.Constraint("DistanceY", 81, 3, -1, 1, Q("388.3167 mm")))
sketch1.addConstraint(Sketcher.Constraint("DistanceY", 82, 3, -1, 1, Q("183.8167 mm")))
sketch1.addConstraint(Sketcher.Constraint("DistanceY", 83, 3, -1, 1, Q("63.8167 mm")))
sketch1.addConstraint(Sketcher.Constraint("DistanceY", -1, 1, 0, 2, Q("11.1833 mm")))
sketch1.setExpression("Constraints[180]", "Params.sketch1_diameter")
sketch1.setExpression("Constraints[181]", "Params.sketch1_diameter2")
sketch1.setExpression("Constraints[182]", "Params.sketch1_radius")
sketch1.setExpression("Constraints[183]", "Params.sketch1_radius2")
sketch1.setExpression("Constraints[184]", "Params.sketch1_width")
pad1 = body.newObject("PartDesign::Pad", "Pad")
pad1.Profile = sketch1
pad1.setExpression("Length", "Params.pad1_length")

sketch2 = body.newObject("Sketcher::SketchObject", "Sketch001")
sketch2.AttachmentSupport = (doc.getObject("XZ_Plane"), [""])
sketch2.MapMode = "FlatFace"
sketch2.addGeometry(Part.LineSegment(V(-450, -259, 0), V(-450, -29, 0)), False)
sketch2.addGeometry(Part.ArcOfCircle(Part.Circle(V(-443, -29, 0), V(0, 0, 1), 7), math.radians(90), math.radians(180)), False)
sketch2.addGeometry(Part.LineSegment(V(-443, -22, 0), V(-153, -22, 0)), False)
sketch2.addGeometry(Part.ArcOfCircle(Part.Circle(V(-153, -29, 0), V(0, 0, 1), 7), math.radians(0), math.radians(90)), False)
sketch2.addGeometry(Part.LineSegment(V(-146, -29, 0), V(-146, -259, 0)), False)
sketch2.addGeometry(Part.ArcOfCircle(Part.Circle(V(-153, -259, 0), V(0, 0, 1), 7), math.radians(-90), math.radians(0)), False)
sketch2.addGeometry(Part.LineSegment(V(-153, -266, 0), V(-443, -266, 0)), False)
sketch2.addGeometry(Part.ArcOfCircle(Part.Circle(V(-443, -259, 0), V(0, 0, 1), 7), math.radians(180), math.radians(270)), False)
sketch2.addGeometry(Part.ArcOfCircle(Part.Circle(V(-436, -252, 0), V(0, 0, 1), 7), math.radians(180), math.radians(270)), False)
sketch2.addGeometry(Part.LineSegment(V(-436, -259, 0), V(-160, -259, 0)), False)
sketch2.addGeometry(Part.ArcOfCircle(Part.Circle(V(-160, -252, 0), V(0, 0, 1), 7), math.radians(-90), math.radians(0)), False)
sketch2.addGeometry(Part.LineSegment(V(-153, -252, 0), V(-153, -36, 0)), False)
sketch2.addGeometry(Part.ArcOfCircle(Part.Circle(V(-160, -36, 0), V(0, 0, 1), 7), math.radians(0), math.radians(90)), False)
sketch2.addGeometry(Part.LineSegment(V(-160, -29, 0), V(-436, -29, 0)), False)
sketch2.addGeometry(Part.ArcOfCircle(Part.Circle(V(-436, -36, 0), V(0, 0, 1), 7), math.radians(90), math.radians(180)), False)
sketch2.addGeometry(Part.LineSegment(V(-443, -36, 0), V(-443, -252, 0)), False)
sketch2.addConstraint(Sketcher.Constraint("Tangent", 0, 2, 1, 2))
sketch2.addConstraint(Sketcher.Constraint("Tangent", 1, 1, 2, 1))
sketch2.addConstraint(Sketcher.Constraint("Tangent", 2, 2, 3, 2))
sketch2.addConstraint(Sketcher.Constraint("Tangent", 3, 1, 4, 1))
sketch2.addConstraint(Sketcher.Constraint("Tangent", 4, 2, 5, 2))
sketch2.addConstraint(Sketcher.Constraint("Tangent", 5, 1, 6, 1))
sketch2.addConstraint(Sketcher.Constraint("Tangent", 6, 2, 7, 2))
sketch2.addConstraint(Sketcher.Constraint("Tangent", 7, 1, 0, 1))
sketch2.addConstraint(Sketcher.Constraint("Tangent", 8, 2, 9, 1))
sketch2.addConstraint(Sketcher.Constraint("Tangent", 9, 2, 10, 1))
sketch2.addConstraint(Sketcher.Constraint("Tangent", 10, 2, 11, 1))
sketch2.addConstraint(Sketcher.Constraint("Tangent", 11, 2, 12, 1))
sketch2.addConstraint(Sketcher.Constraint("Tangent", 12, 2, 13, 1))
sketch2.addConstraint(Sketcher.Constraint("Tangent", 13, 2, 14, 1))
sketch2.addConstraint(Sketcher.Constraint("Tangent", 14, 2, 15, 1))
sketch2.addConstraint(Sketcher.Constraint("Tangent", 15, 2, 8, 1))
sketch2.addConstraint(Sketcher.Constraint("Vertical", 0))
sketch2.addConstraint(Sketcher.Constraint("Horizontal", 2))
sketch2.addConstraint(Sketcher.Constraint("Vertical", 4))
sketch2.addConstraint(Sketcher.Constraint("Horizontal", 6))
sketch2.addConstraint(Sketcher.Constraint("Horizontal", 9))
sketch2.addConstraint(Sketcher.Constraint("Vertical", 11))
sketch2.addConstraint(Sketcher.Constraint("Horizontal", 13))
sketch2.addConstraint(Sketcher.Constraint("Vertical", 15))
sketch2.addConstraint(Sketcher.Constraint("Equal", 1, 3))
sketch2.addConstraint(Sketcher.Constraint("Equal", 3, 5))
sketch2.addConstraint(Sketcher.Constraint("Equal", 5, 7))
sketch2.addConstraint(Sketcher.Constraint("Equal", 7, 8))
sketch2.addConstraint(Sketcher.Constraint("Equal", 8, 10))
sketch2.addConstraint(Sketcher.Constraint("Equal", 10, 12))
sketch2.addConstraint(Sketcher.Constraint("Equal", 12, 14))
sketch2.addConstraint(Sketcher.Constraint("Horizontal", 7, 1, 8, 2))
sketch2.addConstraint(Sketcher.Constraint("Horizontal", 3, 1, 12, 2))
sketch2.addConstraint(Sketcher.Constraint("Vertical", 5, 1, 10, 2))
sketch2.addConstraint(Sketcher.Constraint("Vertical", 6, 2, 14, 2))
sketch2.addConstraint(Sketcher.Constraint("Radius", 1, Q("7 mm")))
sketch2.addConstraint(Sketcher.Constraint("DistanceY", 0, 1, 0, 2, Q("230 mm")))
sketch2.addConstraint(Sketcher.Constraint("DistanceX", 2, 1, 2, 2, Q("290 mm")))
sketch2.addConstraint(Sketcher.Constraint("DistanceX", 1, 3, -1, 1, Q("442.9623 mm")))
sketch2.addConstraint(Sketcher.Constraint("DistanceY", 1, 3, -1, 1, Q("28.8167 mm")))
sketch2.setExpression("Constraints[35]", "Params.sketch2_radius")
sketch2.setExpression("Constraints[36]", "Params.sketch2_height")
sketch2.setExpression("Constraints[37]", "Params.sketch2_width")
pad2 = body.newObject("PartDesign::Pad", "Pad001")
pad2.Profile = sketch2
pad2.setExpression("Length", "Params.pad2_length")

sketch3 = body.newObject("Sketcher::SketchObject", "Sketch002")
sketch3.AttachmentSupport = (doc.getObject("XZ_Plane"), [""])
sketch3.MapMode = "FlatFace"
sketch3.addGeometry(Part.Circle(V(-310, -351.1, 0), V(0, 0, 1), 6), False)
sketch3.addGeometry(Part.Circle(V(-335, -351.1, 0), V(0, 0, 1), 6), False)
sketch3.addGeometry(Part.Circle(V(-123, -306.1, 0), V(0, 0, 1), 6), False)
sketch3.addGeometry(Part.Circle(V(-123, -341.1, 0), V(0, 0, 1), 6), False)
sketch3.addGeometry(Part.Circle(V(-103, -341.1, 0), V(0, 0, 1), 6), False)
sketch3.addGeometry(Part.Circle(V(-103, -306.1, 0), V(0, 0, 1), 6), False)
sketch3.addGeometry(Part.Circle(V(-214, -316.1, 0), V(0, 0, 1), 6), False)
sketch3.addGeometry(Part.Circle(V(-331, -316.1, 0), V(0, 0, 1), 6), False)
sketch3.addGeometry(Part.Circle(V(-168, -309.6, 0), V(0, 0, 1), 3), False)
sketch3.addGeometry(Part.Circle(V(-168, -338.1, 0), V(0, 0, 1), 3), False)
sketch3.addGeometry(Part.Circle(V(-312.5, -324.1, 0), V(0, 0, 1), 3), False)
sketch3.addConstraint(Sketcher.Constraint("Equal", 0, 1))
sketch3.addConstraint(Sketcher.Constraint("Equal", 1, 2))
sketch3.addConstraint(Sketcher.Constraint("Equal", 2, 3))
sketch3.addConstraint(Sketcher.Constraint("Equal", 3, 4))
sketch3.addConstraint(Sketcher.Constraint("Equal", 4, 5))
sketch3.addConstraint(Sketcher.Constraint("Equal", 5, 6))
sketch3.addConstraint(Sketcher.Constraint("Equal", 6, 7))
sketch3.addConstraint(Sketcher.Constraint("Equal", 8, 9))
sketch3.addConstraint(Sketcher.Constraint("Equal", 9, 10))
sketch3.addConstraint(Sketcher.Constraint("Horizontal", 0, 3, 1, 3))
sketch3.addConstraint(Sketcher.Constraint("Horizontal", 3, 3, 4, 3))
sketch3.addConstraint(Sketcher.Constraint("Horizontal", 2, 3, 5, 3))
sketch3.addConstraint(Sketcher.Constraint("Horizontal", 6, 3, 7, 3))
sketch3.addConstraint(Sketcher.Constraint("Vertical", 2, 3, 3, 3))
sketch3.addConstraint(Sketcher.Constraint("Vertical", 4, 3, 5, 3))
sketch3.addConstraint(Sketcher.Constraint("Vertical", 8, 3, 9, 3))
sketch3.addConstraint(Sketcher.Constraint("Diameter", 0, Q("12 mm")))
sketch3.addConstraint(Sketcher.Constraint("Diameter", 8, Q("6 mm")))
sketch3.addConstraint(Sketcher.Constraint("DistanceY", 3, 3, 2, 3, Q("35 mm")))
sketch3.addConstraint(Sketcher.Constraint("DistanceX", 3, 3, 4, 3, Q("20 mm")))
sketch3.addConstraint(Sketcher.Constraint("DistanceY", 0, 3, 6, 3, Q("35 mm")))
sketch3.addConstraint(Sketcher.Constraint("DistanceY", 9, 3, 2, 3, Q("32 mm")))
sketch3.addConstraint(Sketcher.Constraint("DistanceX", 1, 3, 0, 3, Q("25 mm")))
sketch3.addConstraint(Sketcher.Constraint("DistanceX", 0, 3, 2, 3, Q("187 mm")))
sketch3.addConstraint(Sketcher.Constraint("DistanceY", 0, 3, 2, 3, Q("45 mm")))
sketch3.addConstraint(Sketcher.Constraint("DistanceX", 6, 3, 2, 3, Q("91 mm")))
sketch3.addConstraint(Sketcher.Constraint("DistanceX", 1, 3, 7, 3, Q("4 mm")))
sketch3.addConstraint(Sketcher.Constraint("DistanceX", 8, 3, 2, 3, Q("45 mm")))
sketch3.addConstraint(Sketcher.Constraint("DistanceY", 10, 3, 7, 3, Q("8 mm")))
sketch3.addConstraint(Sketcher.Constraint("DistanceY", 8, 3, 2, 3, Q("3.5 mm")))
sketch3.addConstraint(Sketcher.Constraint("DistanceX", 7, 3, 10, 3, Q("18.5 mm")))
sketch3.addConstraint(Sketcher.Constraint("DistanceX", 0, 3, -1, 1, Q("309.9623 mm")))
sketch3.addConstraint(Sketcher.Constraint("DistanceY", 0, 3, -1, 1, Q("351.1167 mm")))
sketch3.setExpression("Constraints[16]", "Params.sketch3_diameter")
sketch3.setExpression("Constraints[17]", "Params.sketch3_diameter2")
pocket1 = body.newObject("PartDesign::Pocket", "Pocket")
pocket1.Profile = sketch3
pocket1.setExpression("Length", "Params.pocket1_length")
pocket1.Reversed = True

sketch4 = body.newObject("Sketcher::SketchObject", "Sketch003")
sketch4.AttachmentSupport = (doc.getObject("XZ_Plane"), [""])
sketch4.MapMode = "FlatFace"
sketch4.addGeometry(Part.Circle(V(-466.6, -38.8, 0), V(0, 0, 1), 3), False)
sketch4.addGeometry(Part.Circle(V(-466.6, -221.8, 0), V(0, 0, 1), 3), False)
sketch4.addGeometry(Part.Circle(V(-466.6, -384.8, 0), V(0, 0, 1), 3), False)
sketch4.addConstraint(Sketcher.Constraint("Equal", 0, 1))
sketch4.addConstraint(Sketcher.Constraint("Equal", 1, 2))
sketch4.addConstraint(Sketcher.Constraint("Vertical", 0, 3, 1, 3))
sketch4.addConstraint(Sketcher.Constraint("Vertical", 1, 3, 2, 3))
sketch4.addConstraint(Sketcher.Constraint("Diameter", 0, Q("6 mm")))
sketch4.addConstraint(Sketcher.Constraint("DistanceY", 1, 3, 0, 3, Q("183 mm")))
sketch4.addConstraint(Sketcher.Constraint("DistanceY", 2, 3, 1, 3, Q("163 mm")))
sketch4.addConstraint(Sketcher.Constraint("DistanceX", 0, 3, -1, 1, Q("466.6043 mm")))
sketch4.addConstraint(Sketcher.Constraint("DistanceY", 0, 3, -1, 1, Q("38.8167 mm")))
sketch4.setExpression("Constraints[4]", "Params.sketch4_diameter")
pocket2 = body.newObject("PartDesign::Pocket", "Pocket001")
pocket2.Profile = sketch4
pocket2.setExpression("Length", "Params.pocket2_length")
pocket2.Reversed = True

doc.recompute()
